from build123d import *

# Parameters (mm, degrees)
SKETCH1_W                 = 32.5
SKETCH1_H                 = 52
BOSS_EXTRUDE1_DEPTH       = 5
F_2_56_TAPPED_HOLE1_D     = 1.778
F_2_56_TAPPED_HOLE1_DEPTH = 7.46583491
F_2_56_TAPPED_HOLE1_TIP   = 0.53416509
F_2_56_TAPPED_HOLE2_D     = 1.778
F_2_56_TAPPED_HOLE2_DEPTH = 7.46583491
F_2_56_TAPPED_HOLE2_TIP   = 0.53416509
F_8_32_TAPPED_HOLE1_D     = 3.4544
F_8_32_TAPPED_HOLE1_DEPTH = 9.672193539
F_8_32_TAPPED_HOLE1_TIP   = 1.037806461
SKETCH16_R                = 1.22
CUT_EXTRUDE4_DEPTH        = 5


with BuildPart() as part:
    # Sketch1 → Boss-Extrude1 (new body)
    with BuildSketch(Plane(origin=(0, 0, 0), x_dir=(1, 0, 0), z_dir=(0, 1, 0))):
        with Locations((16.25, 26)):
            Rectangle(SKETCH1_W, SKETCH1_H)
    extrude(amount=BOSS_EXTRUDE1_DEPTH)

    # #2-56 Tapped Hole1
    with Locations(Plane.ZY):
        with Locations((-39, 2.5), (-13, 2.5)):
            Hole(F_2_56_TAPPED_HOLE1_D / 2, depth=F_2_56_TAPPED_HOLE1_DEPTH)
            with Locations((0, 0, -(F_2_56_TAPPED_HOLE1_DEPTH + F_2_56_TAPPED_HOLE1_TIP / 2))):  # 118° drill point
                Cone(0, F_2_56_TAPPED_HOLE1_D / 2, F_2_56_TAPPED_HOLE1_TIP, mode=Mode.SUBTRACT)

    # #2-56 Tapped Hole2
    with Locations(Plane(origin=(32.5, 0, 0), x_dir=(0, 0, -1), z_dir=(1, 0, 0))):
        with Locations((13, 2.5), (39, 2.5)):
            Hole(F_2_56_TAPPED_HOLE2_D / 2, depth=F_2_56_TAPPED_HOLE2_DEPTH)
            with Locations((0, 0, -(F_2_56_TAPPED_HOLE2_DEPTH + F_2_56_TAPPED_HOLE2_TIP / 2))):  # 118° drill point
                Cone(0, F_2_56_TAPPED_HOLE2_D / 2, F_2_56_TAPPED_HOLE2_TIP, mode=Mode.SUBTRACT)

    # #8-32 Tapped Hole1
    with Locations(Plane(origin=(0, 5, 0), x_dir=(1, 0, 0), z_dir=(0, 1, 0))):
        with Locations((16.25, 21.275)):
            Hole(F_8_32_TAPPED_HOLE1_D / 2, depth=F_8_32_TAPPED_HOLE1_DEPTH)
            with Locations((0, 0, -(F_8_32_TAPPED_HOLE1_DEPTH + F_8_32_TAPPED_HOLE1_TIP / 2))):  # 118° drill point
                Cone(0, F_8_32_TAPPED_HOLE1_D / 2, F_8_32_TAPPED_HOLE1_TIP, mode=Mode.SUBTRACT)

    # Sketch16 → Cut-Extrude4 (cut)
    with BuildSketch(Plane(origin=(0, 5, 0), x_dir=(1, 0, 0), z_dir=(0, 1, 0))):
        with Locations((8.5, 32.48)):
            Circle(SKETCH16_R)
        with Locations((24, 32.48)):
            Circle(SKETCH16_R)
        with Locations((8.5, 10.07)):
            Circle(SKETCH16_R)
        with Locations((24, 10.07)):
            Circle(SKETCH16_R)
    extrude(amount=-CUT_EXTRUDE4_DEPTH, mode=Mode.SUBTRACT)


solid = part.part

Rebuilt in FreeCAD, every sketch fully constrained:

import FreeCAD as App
import Part
import Sketcher

doc = App.newDocument("Part")
body = doc.addObject("PartDesign::Body", "Body")

sketch1 = body.newObject("Sketcher::SketchObject", "Sketch")
sketch1.AttachmentSupport = (doc.getObject("XZ_Plane"), [""])
sketch1.MapMode = "FlatFace"
sketch1.addGeometry([
    Part.LineSegment(App.Vector(0, -52, 0), App.Vector(0, 0, 0)),
    Part.LineSegment(App.Vector(0, 0, 0), App.Vector(32.5, 0, 0)),
    Part.LineSegment(App.Vector(32.5, 0, 0), App.Vector(32.5, -52, 0)),
    Part.LineSegment(App.Vector(32.5, -52, 0), App.Vector(0, -52, 0)),
], False)
sketch1.addConstraint([
    Sketcher.Constraint("Coincident", 0, 2, 1, 1),
    Sketcher.Constraint("Coincident", 1, 2, 2, 1),
    Sketcher.Constraint("Coincident", 2, 2, 3, 1),
    Sketcher.Constraint("Coincident", 3, 2, 0, 1),
    Sketcher.Constraint("Vertical", 0),
    Sketcher.Constraint("Horizontal", 1),
    Sketcher.Constraint("Vertical", 2),
    Sketcher.Constraint("Horizontal", 3),
    Sketcher.Constraint("Coincident", 0, 2, -1, 1),
    Sketcher.Constraint("DistanceY", 0, 1, 0, 2, 52.0),
    Sketcher.Constraint("DistanceX", 1, 1, 1, 2, 32.5),
])
pad1 = body.newObject("PartDesign::Pad", "Pad")
pad1.Profile = sketch1
pad1.Length = 5
pad1.Reversed = True

sketch2 = body.newObject("Sketcher::SketchObject", "Sketch001")
sketch2.AttachmentSupport = (doc.getObject("YZ_Plane"), [""])
sketch2.MapMode = "FlatFace"
sketch2.addGeometry([
    Part.Circle(App.Vector(2.5, -39, 0), App.Vector(0, 0, 1), 0.889),
    Part.Circle(App.Vector(2.5, -13, 0), App.Vector(0, 0, 1), 0.889),
], False)
sketch2.addConstraint([
    Sketcher.Constraint("Equal", 0, 1),
    Sketcher.Constraint("Vertical", 0, 3, 1, 3),
    Sketcher.Constraint("Diameter", 0, 1.778),
    Sketcher.Constraint("DistanceY", 0, 3, -1, 1, 39.0),
    Sketcher.Constraint("DistanceY", 1, 3, -1, 1, 13.0),
    Sketcher.Constraint("DistanceX", -1, 1, 0, 3, 2.5),
])
doc.recompute()
hole = body.newObject("PartDesign::Hole", "Hole")
hole.Profile = sketch2
hole.ThreadType = "None"
hole.Diameter = 1.778
hole.DepthType = "Dimension"
hole.Depth = 7.465835
hole.DrillPoint = "Angled"
hole.DrillPointAngle = 118
hole.Reversed = True

sketch3 = body.newObject("Sketcher::SketchObject", "Sketch002")
sketch3.AttachmentSupport = (doc.getObject("YZ_Plane"), [""])
sketch3.MapMode = "FlatFace"
sketch3.AttachmentOffset = App.Placement(App.Vector(0, 0, 32.5), App.Rotation())
sketch3.addGeometry([
    Part.Circle(App.Vector(2.5, -13, 0), App.Vector(0, 0, 1), 0.889),
    Part.Circle(App.Vector(2.5, -39, 0), App.Vector(0, 0, 1), 0.889),
], False)
sketch3.addConstraint([
    Sketcher.Constraint("Equal", 0, 1),
    Sketcher.Constraint("Vertical", 0, 3, 1, 3),
    Sketcher.Constraint("Diameter", 0, 1.778),
    Sketcher.Constraint("DistanceY", 0, 3, -1, 1, 13.0),
    Sketcher.Constraint("DistanceY", 1, 3, -1, 1, 39.0),
    Sketcher.Constraint("DistanceX", -1, 1, 0, 3, 2.5),
])
doc.recompute()
hole2 = body.newObject("PartDesign::Hole", "Hole001")
hole2.Profile = sketch3
hole2.ThreadType = "None"
hole2.Diameter = 1.778
hole2.DepthType = "Dimension"
hole2.Depth = 7.465835
hole2.DrillPoint = "Angled"
hole2.DrillPointAngle = 118

sketch4 = body.newObject("Sketcher::SketchObject", "Sketch003")
sketch4.AttachmentSupport = (doc.getObject("XZ_Plane"), [""])
sketch4.MapMode = "FlatFace"
sketch4.AttachmentOffset = App.Placement(App.Vector(0, 0, -5), App.Rotation())
sketch4.addGeometry(Part.Circle(App.Vector(16.25, -21.275, 0), App.Vector(0, 0, 1), 1.7272), False)
sketch4.addConstraint([
    Sketcher.Constraint("Diameter", 0, 3.4544),
    Sketcher.Constraint("DistanceX", -1, 1, 0, 3, 16.25),
    Sketcher.Constraint("DistanceY", 0, 3, -1, 1, 21.275),
])
doc.recompute()
hole3 = body.newObject("PartDesign::Hole", "Hole002")
hole3.Profile = sketch4
hole3.ThreadType = "None"
hole3.Diameter = 3.4544
hole3.DepthType = "Dimension"
hole3.Depth = 9.672194
hole3.DrillPoint = "Angled"
hole3.DrillPointAngle = 118
hole3.Reversed = True

sketch5 = body.newObject("Sketcher::SketchObject", "Sketch004")
sketch5.AttachmentSupport = (doc.getObject("XZ_Plane"), [""])
sketch5.MapMode = "FlatFace"
sketch5.AttachmentOffset = App.Placement(App.Vector(0, 0, -5), App.Rotation())
sketch5.addGeometry([
    Part.Circle(App.Vector(8.5, -32.48, 0), App.Vector(0, 0, 1), 1.22),
    Part.Circle(App.Vector(24, -32.48, 0), App.Vector(0, 0, 1), 1.22),
    Part.Circle(App.Vector(8.5, -10.07, 0), App.Vector(0, 0, 1), 1.22),
    Part.Circle(App.Vector(24, -10.07, 0), App.Vector(0, 0, 1), 1.22),
], False)
sketch5.addConstraint([
    Sketcher.Constraint("Equal", 0, 1),
    Sketcher.Constraint("Equal", 1, 2),
    Sketcher.Constraint("Equal", 2, 3),
    Sketcher.Constraint("Horizontal", 0, 3, 1, 3),
    Sketcher.Constraint("Horizontal", 2, 3, 3, 3),
    Sketcher.Constraint("Vertical", 0, 3, 2, 3),
    Sketcher.Constraint("Vertical", 1, 3, 3, 3),
    Sketcher.Constraint("Diameter", 0, 2.44),
    Sketcher.Constraint("DistanceX", -1, 1, 1, 3, 24.0),
    Sketcher.Constraint("DistanceX", -1, 1, 0, 3, 8.5),
    Sketcher.Constraint("DistanceY", 0, 3, -1, 1, 32.48),
    Sketcher.Constraint("DistanceY", 2, 3, -1, 1, 10.07),
])
pocket1 = body.newObject("PartDesign::Pocket", "Pocket")
pocket1.Profile = sketch5
pocket1.Length = 5
pocket1.Reversed = True

doc.recompute()
